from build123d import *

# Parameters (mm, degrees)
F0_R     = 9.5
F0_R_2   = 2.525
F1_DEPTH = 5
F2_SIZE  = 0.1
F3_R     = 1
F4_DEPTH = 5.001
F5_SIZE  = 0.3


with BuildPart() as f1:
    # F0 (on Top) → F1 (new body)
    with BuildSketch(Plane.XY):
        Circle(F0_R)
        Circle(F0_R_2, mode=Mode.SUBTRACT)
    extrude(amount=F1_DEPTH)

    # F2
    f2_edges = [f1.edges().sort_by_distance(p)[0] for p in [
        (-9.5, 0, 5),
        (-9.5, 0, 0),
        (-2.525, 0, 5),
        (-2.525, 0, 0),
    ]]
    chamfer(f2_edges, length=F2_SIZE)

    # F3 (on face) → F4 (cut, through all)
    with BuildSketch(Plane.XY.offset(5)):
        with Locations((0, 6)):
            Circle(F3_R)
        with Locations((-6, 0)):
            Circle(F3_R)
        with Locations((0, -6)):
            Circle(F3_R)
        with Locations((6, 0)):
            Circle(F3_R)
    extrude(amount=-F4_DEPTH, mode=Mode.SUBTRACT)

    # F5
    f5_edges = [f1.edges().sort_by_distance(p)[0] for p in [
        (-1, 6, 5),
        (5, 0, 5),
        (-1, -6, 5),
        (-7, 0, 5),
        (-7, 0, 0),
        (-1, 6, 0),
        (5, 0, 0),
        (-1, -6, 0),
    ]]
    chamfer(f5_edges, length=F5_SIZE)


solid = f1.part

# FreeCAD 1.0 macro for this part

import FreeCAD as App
import Part
import Sketcher

V = App.Vector


def edges_at(feature, points):
    """Names of the edges that pass closest to the given points."""
    edges = feature.Shape.Edges
    near = lambda p: min(range(len(edges)), key=lambda i: edges[i].distToShape(Part.Vertex(*p))[0])
    return sorted({f"Edge{near(p) + 1}" for p in points})

doc = App.newDocument("Part")
body = doc.addObject("PartDesign::Body", "Body")

sketch1 = body.newObject("Sketcher::SketchObject", "Sketch")
sketch1.AttachmentSupport = (doc.getObject("XY_Plane"), [""])
sketch1.MapMode = "FlatFace"
sketch1.addGeometry([
    Part.Circle(V(0, 0, 0), V(0, 0, 1), 9.5),
    Part.Circle(V(0, 0, 0), V(0, 0, 1), 2.5),
], False)
sketch1.addConstraint([
    Sketcher.Constraint("Coincident", 0, 3, -1, 1),
    Sketcher.Constraint("Coincident", 1, 3, -1, 1),
    Sketcher.Constraint("Diameter", 0, 19.0),
    Sketcher.Constraint("Diameter", 1, 5.05),
])
pad1 = body.newObject("PartDesign::Pad", "Pad")
pad1.Profile = sketch1
pad1.Length = 5
doc.recompute()

chamfer = body.newObject("PartDesign::Chamfer", "Chamfer")
chamfer.Base = (pad1, edges_at(pad1, [
    (-9.5, 0, 5),
    (-9.5, 0, 0),
    (-2.525, 0, 5),
    (-2.525, 0, 0),
]))
chamfer.Size = 0.1

sketch2 = body.newObject("Sketcher::SketchObject", "Sketch001")
sketch2.AttachmentSupport = (doc.getObject("XY_Plane"), [""])
sketch2.MapMode = "FlatFace"
sketch2.AttachmentOffset = App.Placement(V(0, 0, 5), App.Rotation())
sketch2.addGeometry([
    Part.Circle(V(0, 6, 0), V(0, 0, 1), 1),
    Part.Circle(V(-6, 0, 0), V(0, 0, 1), 1),
    Part.Circle(V(0, -6, 0), V(0, 0, 1), 1),
    Part.Circle(V(6, 0, 0), V(0, 0, 1), 1),
], False)
sketch2.addConstraint([
    Sketcher.Constraint("Equal", 0, 1),
    Sketcher.Constraint("Equal", 1, 2),
    Sketcher.Constraint("Equal", 2, 3),
    Sketcher.Constraint("Symmetric", 0, 3, 2, 3, -1, 1),
    Sketcher.Constraint("Symmetric", 1, 3, 3, 3, -1, 1),
    Sketcher.Constraint("PointOnObject", 0, 3, -2),
    Sketcher.Constraint("PointOnObject", 1, 3, -1),
    Sketcher.Constraint("Diameter", 0, 2.0),
    Sketcher.Constraint("DistanceY", -1, 1, 0, 3, 6.0),
    Sketcher.Constraint("DistanceX", 1, 3, -1, 1, 6.0),
])
pocket1 = body.newObject("PartDesign::Pocket", "Pocket")
pocket1.Profile = sketch2
pocket1.Type = "ThroughAll"
doc.recompute()

chamfer2 = body.newObject("PartDesign::Chamfer", "Chamfer001")
chamfer2.Base = (pocket1, edges_at(pocket1, [
    (-1, 6, 5),
    (5, 0, 5),
    (-1, -6, 5),
    (-7, 0, 5),
    (-7, 0, 0),
    (-1, 6, 0),
    (5, 0, 0),
    (-1, -6, 0),
]))
chamfer2.Size = 0.3

doc.recompute()
